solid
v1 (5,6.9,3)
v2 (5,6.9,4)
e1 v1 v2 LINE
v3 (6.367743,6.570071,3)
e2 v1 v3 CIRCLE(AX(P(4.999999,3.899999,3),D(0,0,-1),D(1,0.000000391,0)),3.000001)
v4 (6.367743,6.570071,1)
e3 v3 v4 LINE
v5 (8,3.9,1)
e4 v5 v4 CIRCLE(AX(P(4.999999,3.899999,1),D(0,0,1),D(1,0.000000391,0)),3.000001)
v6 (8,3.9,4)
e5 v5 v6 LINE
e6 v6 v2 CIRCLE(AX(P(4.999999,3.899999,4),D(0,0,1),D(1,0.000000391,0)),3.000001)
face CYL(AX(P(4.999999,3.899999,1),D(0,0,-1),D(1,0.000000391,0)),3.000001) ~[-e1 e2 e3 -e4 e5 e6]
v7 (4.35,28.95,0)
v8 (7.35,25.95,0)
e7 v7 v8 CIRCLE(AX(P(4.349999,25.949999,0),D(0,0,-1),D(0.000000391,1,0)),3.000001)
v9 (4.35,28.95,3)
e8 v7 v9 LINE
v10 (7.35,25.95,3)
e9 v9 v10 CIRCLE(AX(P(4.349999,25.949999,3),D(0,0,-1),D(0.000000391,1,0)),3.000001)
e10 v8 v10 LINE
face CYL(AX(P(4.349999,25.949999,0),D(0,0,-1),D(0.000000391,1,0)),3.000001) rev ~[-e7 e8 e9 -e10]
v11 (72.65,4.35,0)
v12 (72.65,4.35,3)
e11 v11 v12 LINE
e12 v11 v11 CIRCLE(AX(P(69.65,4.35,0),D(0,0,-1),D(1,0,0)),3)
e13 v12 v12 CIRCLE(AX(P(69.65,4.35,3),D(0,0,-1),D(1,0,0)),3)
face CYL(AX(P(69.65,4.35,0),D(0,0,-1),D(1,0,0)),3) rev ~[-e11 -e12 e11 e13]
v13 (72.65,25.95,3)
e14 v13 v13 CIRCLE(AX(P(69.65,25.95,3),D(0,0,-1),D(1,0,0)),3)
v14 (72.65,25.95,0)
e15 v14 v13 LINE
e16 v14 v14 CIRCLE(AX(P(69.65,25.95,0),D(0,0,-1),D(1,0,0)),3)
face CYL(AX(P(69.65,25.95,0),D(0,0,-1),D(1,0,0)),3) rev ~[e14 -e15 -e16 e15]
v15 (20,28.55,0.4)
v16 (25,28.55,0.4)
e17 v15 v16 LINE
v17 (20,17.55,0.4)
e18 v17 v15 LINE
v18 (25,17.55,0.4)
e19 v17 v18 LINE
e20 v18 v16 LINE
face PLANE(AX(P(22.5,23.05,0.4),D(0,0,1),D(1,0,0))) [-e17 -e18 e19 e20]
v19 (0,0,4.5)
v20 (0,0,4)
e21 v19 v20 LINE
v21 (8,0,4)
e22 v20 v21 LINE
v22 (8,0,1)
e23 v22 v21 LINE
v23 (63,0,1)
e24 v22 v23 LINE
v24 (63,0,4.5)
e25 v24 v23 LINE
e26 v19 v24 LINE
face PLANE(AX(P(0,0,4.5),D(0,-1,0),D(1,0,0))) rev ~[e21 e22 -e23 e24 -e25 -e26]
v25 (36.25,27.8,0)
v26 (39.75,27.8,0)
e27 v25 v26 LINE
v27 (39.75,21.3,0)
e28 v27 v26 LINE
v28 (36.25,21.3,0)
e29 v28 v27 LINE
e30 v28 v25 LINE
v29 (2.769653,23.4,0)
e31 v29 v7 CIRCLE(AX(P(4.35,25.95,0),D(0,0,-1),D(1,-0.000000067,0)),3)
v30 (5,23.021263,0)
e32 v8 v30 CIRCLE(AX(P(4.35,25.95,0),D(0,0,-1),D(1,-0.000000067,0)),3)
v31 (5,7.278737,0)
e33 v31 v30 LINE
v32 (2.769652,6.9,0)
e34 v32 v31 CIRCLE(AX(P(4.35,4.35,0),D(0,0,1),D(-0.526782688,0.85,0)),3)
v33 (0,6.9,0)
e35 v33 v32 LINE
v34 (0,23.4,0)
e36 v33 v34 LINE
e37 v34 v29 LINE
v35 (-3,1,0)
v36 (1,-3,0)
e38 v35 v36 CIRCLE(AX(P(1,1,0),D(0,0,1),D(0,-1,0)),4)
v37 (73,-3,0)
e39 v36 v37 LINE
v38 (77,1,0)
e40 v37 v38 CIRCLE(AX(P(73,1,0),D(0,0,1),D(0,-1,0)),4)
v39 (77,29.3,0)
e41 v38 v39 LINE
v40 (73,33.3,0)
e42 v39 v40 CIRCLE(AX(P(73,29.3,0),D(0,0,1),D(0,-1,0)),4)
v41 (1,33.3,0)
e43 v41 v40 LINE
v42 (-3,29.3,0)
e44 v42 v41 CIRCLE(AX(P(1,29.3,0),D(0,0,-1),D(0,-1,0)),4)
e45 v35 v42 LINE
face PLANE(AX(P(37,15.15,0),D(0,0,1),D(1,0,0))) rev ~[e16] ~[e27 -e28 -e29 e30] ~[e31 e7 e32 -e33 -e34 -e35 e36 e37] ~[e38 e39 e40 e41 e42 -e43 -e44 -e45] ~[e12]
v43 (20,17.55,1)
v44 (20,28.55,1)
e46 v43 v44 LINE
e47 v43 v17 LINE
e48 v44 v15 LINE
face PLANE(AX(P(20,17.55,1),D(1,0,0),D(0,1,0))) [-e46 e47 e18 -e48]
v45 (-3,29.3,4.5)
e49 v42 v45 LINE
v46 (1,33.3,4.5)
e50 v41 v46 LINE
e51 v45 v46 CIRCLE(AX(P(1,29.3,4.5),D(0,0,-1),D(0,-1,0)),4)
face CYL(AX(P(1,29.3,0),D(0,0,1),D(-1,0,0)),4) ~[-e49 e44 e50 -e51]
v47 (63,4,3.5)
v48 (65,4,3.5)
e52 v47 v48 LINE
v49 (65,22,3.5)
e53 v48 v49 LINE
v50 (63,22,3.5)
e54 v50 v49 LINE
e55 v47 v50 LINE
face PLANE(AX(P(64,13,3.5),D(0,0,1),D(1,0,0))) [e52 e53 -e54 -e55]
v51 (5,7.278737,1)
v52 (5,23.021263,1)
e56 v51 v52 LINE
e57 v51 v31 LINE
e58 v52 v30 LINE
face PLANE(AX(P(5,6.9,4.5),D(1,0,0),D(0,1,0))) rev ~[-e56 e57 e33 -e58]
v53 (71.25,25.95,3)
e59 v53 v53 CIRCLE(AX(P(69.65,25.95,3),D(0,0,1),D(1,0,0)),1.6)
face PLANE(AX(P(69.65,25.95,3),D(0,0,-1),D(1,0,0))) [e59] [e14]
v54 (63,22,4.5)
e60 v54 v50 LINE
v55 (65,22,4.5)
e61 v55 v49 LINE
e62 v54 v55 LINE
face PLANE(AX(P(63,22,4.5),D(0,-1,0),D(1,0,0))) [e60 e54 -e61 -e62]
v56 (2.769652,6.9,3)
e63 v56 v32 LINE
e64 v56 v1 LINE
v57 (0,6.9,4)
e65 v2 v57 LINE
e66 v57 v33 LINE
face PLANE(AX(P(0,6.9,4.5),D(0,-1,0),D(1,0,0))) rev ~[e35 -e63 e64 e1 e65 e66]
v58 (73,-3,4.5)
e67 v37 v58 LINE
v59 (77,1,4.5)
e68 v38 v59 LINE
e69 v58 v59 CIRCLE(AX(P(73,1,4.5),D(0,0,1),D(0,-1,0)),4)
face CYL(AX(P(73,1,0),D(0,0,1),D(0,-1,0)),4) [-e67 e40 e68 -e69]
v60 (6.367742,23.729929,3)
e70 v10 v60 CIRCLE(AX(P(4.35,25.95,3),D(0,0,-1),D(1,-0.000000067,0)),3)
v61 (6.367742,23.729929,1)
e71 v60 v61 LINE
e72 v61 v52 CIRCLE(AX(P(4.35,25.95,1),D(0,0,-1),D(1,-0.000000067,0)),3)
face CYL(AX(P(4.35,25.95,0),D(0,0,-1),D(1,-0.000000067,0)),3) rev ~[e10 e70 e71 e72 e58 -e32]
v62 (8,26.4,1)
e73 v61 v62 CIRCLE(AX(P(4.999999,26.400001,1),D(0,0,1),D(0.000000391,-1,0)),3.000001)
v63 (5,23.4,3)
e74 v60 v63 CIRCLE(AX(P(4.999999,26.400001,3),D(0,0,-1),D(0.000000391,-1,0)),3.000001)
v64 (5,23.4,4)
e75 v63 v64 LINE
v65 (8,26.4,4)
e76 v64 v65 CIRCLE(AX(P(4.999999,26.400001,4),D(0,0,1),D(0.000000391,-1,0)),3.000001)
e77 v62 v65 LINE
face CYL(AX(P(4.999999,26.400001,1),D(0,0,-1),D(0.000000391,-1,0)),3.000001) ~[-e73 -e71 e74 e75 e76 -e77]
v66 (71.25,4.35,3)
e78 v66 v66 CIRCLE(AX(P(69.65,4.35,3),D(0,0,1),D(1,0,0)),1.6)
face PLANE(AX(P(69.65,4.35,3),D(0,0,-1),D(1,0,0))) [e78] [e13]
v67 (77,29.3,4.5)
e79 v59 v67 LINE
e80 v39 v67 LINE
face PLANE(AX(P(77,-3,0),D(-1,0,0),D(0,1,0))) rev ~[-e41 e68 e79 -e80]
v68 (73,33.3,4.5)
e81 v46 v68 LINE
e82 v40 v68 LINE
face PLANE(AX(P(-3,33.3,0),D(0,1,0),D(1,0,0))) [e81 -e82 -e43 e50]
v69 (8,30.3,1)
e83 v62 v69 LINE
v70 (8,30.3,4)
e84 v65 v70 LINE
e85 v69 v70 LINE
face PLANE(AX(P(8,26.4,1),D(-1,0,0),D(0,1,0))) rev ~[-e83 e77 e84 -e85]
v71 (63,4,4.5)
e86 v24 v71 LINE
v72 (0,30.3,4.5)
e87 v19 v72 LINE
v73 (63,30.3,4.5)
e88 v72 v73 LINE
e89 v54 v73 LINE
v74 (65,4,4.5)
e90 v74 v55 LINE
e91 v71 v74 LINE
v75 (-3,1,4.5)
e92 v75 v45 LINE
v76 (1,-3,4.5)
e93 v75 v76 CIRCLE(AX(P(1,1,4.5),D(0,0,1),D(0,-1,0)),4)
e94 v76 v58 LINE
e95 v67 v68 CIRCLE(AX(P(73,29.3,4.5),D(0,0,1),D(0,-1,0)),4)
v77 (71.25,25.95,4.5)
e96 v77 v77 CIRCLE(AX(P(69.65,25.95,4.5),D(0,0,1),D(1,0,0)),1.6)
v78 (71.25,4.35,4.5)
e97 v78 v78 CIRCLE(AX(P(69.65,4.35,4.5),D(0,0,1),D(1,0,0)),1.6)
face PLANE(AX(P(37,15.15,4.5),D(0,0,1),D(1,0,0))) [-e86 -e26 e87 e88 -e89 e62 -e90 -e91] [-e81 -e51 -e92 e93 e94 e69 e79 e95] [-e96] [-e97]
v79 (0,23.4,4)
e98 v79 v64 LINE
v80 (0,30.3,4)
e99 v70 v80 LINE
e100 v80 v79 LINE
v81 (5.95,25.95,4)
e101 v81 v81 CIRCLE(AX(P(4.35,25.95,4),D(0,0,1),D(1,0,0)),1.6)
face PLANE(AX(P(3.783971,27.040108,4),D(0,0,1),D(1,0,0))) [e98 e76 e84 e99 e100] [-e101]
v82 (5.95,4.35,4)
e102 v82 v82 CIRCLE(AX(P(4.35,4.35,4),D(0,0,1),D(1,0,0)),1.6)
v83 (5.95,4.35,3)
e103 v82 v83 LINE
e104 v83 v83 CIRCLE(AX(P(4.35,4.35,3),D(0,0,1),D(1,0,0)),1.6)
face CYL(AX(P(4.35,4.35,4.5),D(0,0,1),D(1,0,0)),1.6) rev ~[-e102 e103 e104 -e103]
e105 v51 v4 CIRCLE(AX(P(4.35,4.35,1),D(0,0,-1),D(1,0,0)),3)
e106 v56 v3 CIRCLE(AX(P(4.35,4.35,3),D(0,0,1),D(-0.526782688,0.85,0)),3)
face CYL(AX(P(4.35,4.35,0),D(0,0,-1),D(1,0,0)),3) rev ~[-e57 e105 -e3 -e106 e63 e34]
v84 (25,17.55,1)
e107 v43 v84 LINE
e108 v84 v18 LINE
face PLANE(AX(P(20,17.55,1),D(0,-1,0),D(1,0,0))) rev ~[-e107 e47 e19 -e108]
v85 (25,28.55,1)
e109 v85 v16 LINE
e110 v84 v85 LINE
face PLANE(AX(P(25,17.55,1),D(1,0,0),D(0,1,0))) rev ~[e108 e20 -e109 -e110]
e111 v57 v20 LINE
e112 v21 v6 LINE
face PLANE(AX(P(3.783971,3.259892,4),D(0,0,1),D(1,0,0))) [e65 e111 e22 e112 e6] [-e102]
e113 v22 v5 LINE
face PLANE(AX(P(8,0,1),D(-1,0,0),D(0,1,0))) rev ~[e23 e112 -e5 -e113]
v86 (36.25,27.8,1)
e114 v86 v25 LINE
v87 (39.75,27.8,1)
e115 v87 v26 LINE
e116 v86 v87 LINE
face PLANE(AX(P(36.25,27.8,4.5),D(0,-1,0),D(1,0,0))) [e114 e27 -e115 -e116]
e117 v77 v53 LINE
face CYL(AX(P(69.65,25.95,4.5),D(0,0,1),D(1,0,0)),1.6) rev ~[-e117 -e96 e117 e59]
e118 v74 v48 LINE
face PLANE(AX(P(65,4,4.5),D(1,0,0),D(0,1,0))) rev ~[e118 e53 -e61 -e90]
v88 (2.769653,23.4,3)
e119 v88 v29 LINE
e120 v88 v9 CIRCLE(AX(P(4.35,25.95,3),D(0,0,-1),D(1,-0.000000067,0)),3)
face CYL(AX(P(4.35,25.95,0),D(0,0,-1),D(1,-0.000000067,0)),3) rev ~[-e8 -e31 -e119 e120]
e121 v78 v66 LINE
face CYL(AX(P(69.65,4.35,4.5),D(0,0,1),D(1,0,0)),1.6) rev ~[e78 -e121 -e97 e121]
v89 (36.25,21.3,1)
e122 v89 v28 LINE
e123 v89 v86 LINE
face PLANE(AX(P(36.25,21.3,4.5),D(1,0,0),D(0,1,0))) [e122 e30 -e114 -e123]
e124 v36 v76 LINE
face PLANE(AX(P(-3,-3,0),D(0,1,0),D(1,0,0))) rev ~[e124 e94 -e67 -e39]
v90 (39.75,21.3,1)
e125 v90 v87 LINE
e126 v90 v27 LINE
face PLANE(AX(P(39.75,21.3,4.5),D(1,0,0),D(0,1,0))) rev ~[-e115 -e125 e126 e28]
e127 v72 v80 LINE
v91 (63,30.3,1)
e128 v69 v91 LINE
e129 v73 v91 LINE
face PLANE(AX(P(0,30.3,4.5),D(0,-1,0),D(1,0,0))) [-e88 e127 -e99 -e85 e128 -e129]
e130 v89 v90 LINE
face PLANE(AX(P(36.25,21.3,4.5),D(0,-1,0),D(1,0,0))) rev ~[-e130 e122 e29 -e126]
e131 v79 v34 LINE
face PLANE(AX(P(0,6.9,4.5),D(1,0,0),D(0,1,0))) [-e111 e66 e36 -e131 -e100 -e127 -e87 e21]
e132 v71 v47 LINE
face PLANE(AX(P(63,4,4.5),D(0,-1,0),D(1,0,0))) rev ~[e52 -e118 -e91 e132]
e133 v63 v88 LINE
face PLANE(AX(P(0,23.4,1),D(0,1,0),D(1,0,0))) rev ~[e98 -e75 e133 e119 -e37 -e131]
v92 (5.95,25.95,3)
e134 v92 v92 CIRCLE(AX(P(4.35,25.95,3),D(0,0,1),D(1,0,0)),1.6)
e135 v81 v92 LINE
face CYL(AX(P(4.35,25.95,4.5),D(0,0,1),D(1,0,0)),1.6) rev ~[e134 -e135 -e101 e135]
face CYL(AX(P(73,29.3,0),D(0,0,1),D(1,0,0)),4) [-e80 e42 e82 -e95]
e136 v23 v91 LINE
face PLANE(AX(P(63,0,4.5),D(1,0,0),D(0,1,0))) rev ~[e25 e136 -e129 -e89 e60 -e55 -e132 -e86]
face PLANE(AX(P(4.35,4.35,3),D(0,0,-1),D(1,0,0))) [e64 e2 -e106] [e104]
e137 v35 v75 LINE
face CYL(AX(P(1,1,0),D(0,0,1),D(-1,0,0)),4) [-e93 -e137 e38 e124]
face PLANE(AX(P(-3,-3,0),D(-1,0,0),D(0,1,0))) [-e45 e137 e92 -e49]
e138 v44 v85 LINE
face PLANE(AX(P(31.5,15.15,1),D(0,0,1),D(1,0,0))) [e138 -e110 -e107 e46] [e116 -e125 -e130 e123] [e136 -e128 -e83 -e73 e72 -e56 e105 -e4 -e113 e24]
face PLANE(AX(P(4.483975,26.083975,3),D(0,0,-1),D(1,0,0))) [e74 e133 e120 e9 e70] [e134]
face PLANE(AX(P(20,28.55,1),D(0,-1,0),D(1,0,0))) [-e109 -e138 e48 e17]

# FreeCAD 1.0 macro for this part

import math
import FreeCAD as App
import Part
import Sketcher
from FreeCAD import Vector


def edges_at(feature, points):
    """Names of the edges that pass closest to the given points."""
    edges = feature.Shape.Edges
    near = lambda p: min(range(len(edges)), key=lambda i: edges[i].distToShape(Part.Vertex(*p))[0])
    return sorted({f"Edge{near(p) + 1}" for p in points})


def add_polygon(sketch, points):
    """Adds a closed chain of lines whose ends are joined by coincident constraints."""
    first, n = sketch.GeometryCount, len(points)
    for a, b in zip(points, points[1:] + points[:1]):
        sketch.addGeometry(Part.LineSegment(App.Vector(*a, 0), App.Vector(*b, 0)), False)
    for i in range(n):
        sketch.addConstraint(Sketcher.Constraint("Coincident", first + i, 2, first + (i + 1) % n, 1))

doc = App.newDocument("Part")
body = doc.addObject("PartDesign::Body", "Body")

sketch1 = body.newObject("Sketcher::SketchObject", "Sketch")
sketch1.AttachmentSupport = (doc.getObject("XY_Plane"), [""])
sketch1.MapMode = "FlatFace"
add_polygon(sketch1, [(-3, 33), (-3, -3), (77, -3), (77, 33)])
sketch1.addConstraint([
    Sketcher.Constraint("Vertical", 0),
    Sketcher.Constraint("Horizontal", 1),
    Sketcher.Constraint("Vertical", 2),
    Sketcher.Constraint("Horizontal", 3),
    Sketcher.Constraint("DistanceX", 1, 1, 1, 2, 80.0),
    Sketcher.Constraint("DistanceY", 0, 2, 0, 1, 36.3),
    Sketcher.Constraint("DistanceX", 0, 2, -1, 1, 3.0),
    Sketcher.Constraint("DistanceY", 0, 2, -1, 1, 3.0),
])
pad1 = body.newObject("PartDesign::Pad", "Pad")
pad1.Profile = sketch1
pad1.Length = 4.5
doc.recompute()

fillet = body.newObject("PartDesign::Fillet", "Fillet")
fillet.Base = (pad1, edges_at(pad1, [
    (-3, -3, 2.25),
    (77, -3, 2.25),
    (77, 33.3, 2.25),
    (-3, 33.3, 2.25),
]))
fillet.Radius = 4

sketch2 = body.newObject("Sketcher::SketchObject", "Sketch001")
sketch2.AttachmentSupport = (doc.getObject("XY_Plane"), [""])
sketch2.MapMode = "FlatFace"
sketch2.AttachmentOffset = App.Placement(Vector(0, 0, 4.5), App.Rotation())
add_polygon(sketch2, [(0, 30), (0, 0), (63, 0), (63, 30)])
sketch2.addConstraint([
    Sketcher.Constraint("Vertical", 0),
    Sketcher.Constraint("Horizontal", 1),
    Sketcher.Constraint("Vertical", 2),
    Sketcher.Constraint("Horizontal", 3),
    Sketcher.Constraint("Coincident", 0, 2, -1, 1),
    Sketcher.Constraint("DistanceX", 1, 1, 1, 2, 63.0),
    Sketcher.Constraint("DistanceY", 0, 2, 0, 1, 30.3),
])
pocket1 = body.newObject("PartDesign::Pocket", "Pocket")
pocket1.Profile = sketch2
pocket1.Length = 3.5

sketch3 = body.newObject("Sketcher::SketchObject", "Sketch002")
sketch3.AttachmentSupport = (doc.getObject("XY_Plane"), [""])
sketch3.MapMode = "FlatFace"
sketch3.AttachmentOffset = App.Placement(Vector(0, 0, 4.5), App.Rotation())
add_polygon(sketch3, [(0, 23.4), (0, 6.9), (5, 6.9), (5, 23.4)])
add_polygon(sketch3, [(36.2, 27.8), (36.2, 21.3), (39.8, 21.3), (39.8, 27.8)])
sketch3.addConstraint([
    Sketcher.Constraint("Vertical", 0),
    Sketcher.Constraint("Horizontal", 1),
    Sketcher.Constraint("Vertical", 2),
    Sketcher.Constraint("Horizontal", 3),
    Sketcher.Constraint("Vertical", 4),
    Sketcher.Constraint("Horizontal", 5),
    Sketcher.Constraint("Vertical", 6),
    Sketcher.Constraint("Horizontal", 7),
    Sketcher.Constraint("PointOnObject", 0, 2, -2),
    Sketcher.Constraint("DistanceX", 1, 1, 1, 2, 5.0),
    Sketcher.Constraint("DistanceX", 5, 1, 5, 2, 3.5),
    Sketcher.Constraint("DistanceY", 0, 2, 0, 1, 16.5),
    Sketcher.Constraint("DistanceY", 4, 2, 4, 1, 6.5),
    Sketcher.Constraint("DistanceY", -1, 1, 0, 2, 6.9),
    Sketcher.Constraint("DistanceY", -1, 1, 4, 2, 21.3),
    Sketcher.Constraint("DistanceX", -1, 1, 4, 2, 36.25),
])
pocket2 = body.newObject("PartDesign::Pocket", "Pocket001")
pocket2.Profile = sketch3
pocket2.Type = "ThroughAll"

sketch4 = body.newObject("Sketcher::SketchObject", "Sketch003")
sketch4.AttachmentSupport = (doc.getObject("XY_Plane"), [""])
sketch4.MapMode = "FlatFace"
sketch4.AttachmentOffset = App.Placement(Vector(0, 0, 4.5), App.Rotation())
add_polygon(sketch4, [(63, 22), (63, 4), (65, 4), (65, 22)])
sketch4.addConstraint([
    Sketcher.Constraint("Vertical", 0),
    Sketcher.Constraint("Horizontal", 1),
    Sketcher.Constraint("Vertical", 2),
    Sketcher.Constraint("Horizontal", 3),
    Sketcher.Constraint("DistanceX", 1, 1, 1, 2, 2.0),
    Sketcher.Constraint("DistanceY", 0, 2, 0, 1, 18.0),
    Sketcher.Constraint("DistanceX", -1, 1, 0, 2, 63.0),
    Sketcher.Constraint("DistanceY", -1, 1, 0, 2, 4.0),
])
pocket3 = body.newObject("PartDesign::Pocket", "Pocket002")
pocket3.Profile = sketch4
pocket3.Length = 1

sketch5 = body.newObject("Sketcher::SketchObject", "Sketch004")
sketch5.AttachmentSupport = (doc.getObject("XY_Plane"), [""])
sketch5.MapMode = "FlatFace"
sketch5.AttachmentOffset = App.Placement(Vector(0, 0, 1), App.Rotation())
sketch5.addGeometry([
    Part.LineSegment(Vector(8, 30.3, 0), Vector(0, 30.3, 0)),
    Part.LineSegment(Vector(0, 30.3, 0), Vector(0, 23.4, 0)),
    Part.LineSegment(Vector(0, 23.4, 0), Vector(5, 23.4, 0)),
    Part.ArcOfCircle(Part.Circle(Vector(5, 26.4, 0), Vector(0, 0, 1), 3), math.radians(-90), math.radians(0)),
    Part.LineSegment(Vector(8, 26.4, 0), Vector(8, 30.3, 0)),
    Part.LineSegment(Vector(5, 6.9, 0), Vector(0, 6.9, 0)),
    Part.LineSegment(Vector(0, 6.9, 0), Vector(0, 0, 0)),
    Part.LineSegment(Vector(0, 0, 0), Vector(8, 0, 0)),
    Part.LineSegment(Vector(8, 0, 0), Vector(8, 3.9, 0)),
    Part.ArcOfCircle(Part.Circle(Vector(5, 3.9, 0), Vector(0, 0, 1), 3), math.radians(0), math.radians(90)),
], False)
sketch5.addConstraint([
    Sketcher.Constraint("Coincident", 0, 2, 1, 1),
    Sketcher.Constraint("Coincident", 1, 2, 2, 1),
    Sketcher.Constraint("Tangent", 2, 2, 3, 1),
    Sketcher.Constraint("Tangent", 3, 2, 4, 1),
    Sketcher.Constraint("Coincident", 4, 2, 0, 1),
    Sketcher.Constraint("Coincident", 5, 2, 6, 1),
    Sketcher.Constraint("Coincident", 6, 2, 7, 1),
    Sketcher.Constraint("Coincident", 7, 2, 8, 1),
    Sketcher.Constraint("Tangent", 8, 2, 9, 1),
    Sketcher.Constraint("Tangent", 9, 2, 5, 1),
    Sketcher.Constraint("Horizontal", 0),
    Sketcher.Constraint("Vertical", 1),
    Sketcher.Constraint("Horizontal", 2),
    Sketcher.Constraint("Vertical", 4),
    Sketcher.Constraint("Horizontal", 5),
    Sketcher.Constraint("Vertical", 6),
    Sketcher.Constraint("Horizontal", 7),
    Sketcher.Constraint("Vertical", 8),
    Sketcher.Constraint("Coincident", 6, 2, -1, 1),
    Sketcher.Constraint("Equal", 3, 9),
    Sketcher.Constraint("PointOnObject", 0, 2, -2),
    Sketcher.Constraint("Vertical", 3, 3, 9, 3),
    Sketcher.Constraint("Equal", 1, 6),
    Sketcher.Constraint("Radius", 3, 3.000001),
    Sketcher.Constraint("DistanceX", 0, 2, 0, 1, 8.0),
    Sketcher.Constraint("DistanceY", 1, 2, 1, 1, 6.9),
    Sketcher.Constraint("DistanceY", -1, 1, 3, 3, 26.400001),
])
pad2 = body.newObject("PartDesign::Pad", "Pad001")
pad2.Profile = sketch5
pad2.Length = 3

sketch6 = body.newObject("Sketcher::SketchObject", "Sketch005")
sketch6.AttachmentSupport = (doc.getObject("XY_Plane"), [""])
sketch6.MapMode = "FlatFace"
sketch6.AttachmentOffset = App.Placement(Vector(0, 0, 4.5), App.Rotation())
sketch6.addGeometry([
    Part.Circle(Vector(4.3, 4.3, 0), Vector(0, 0, 1), 1.6),
    Part.Circle(Vector(4.3, 25.9, 0), Vector(0, 0, 1), 1.6),
    Part.Circle(Vector(69.7, 25.9, 0), Vector(0, 0, 1), 1.6),
    Part.Circle(Vector(69.7, 4.3, 0), Vector(0, 0, 1), 1.6),
], False)
sketch6.addConstraint([
    Sketcher.Constraint("Equal", 0, 1),
    Sketcher.Constraint("Equal", 1, 2),
    Sketcher.Constraint("Equal", 2, 3),
    Sketcher.Constraint("Horizontal", 1, 3, 2, 3),
    Sketcher.Constraint("Horizontal", 0, 3, 3, 3),
    Sketcher.Constraint("Vertical", 0, 3, 1, 3),
    Sketcher.Constraint("Vertical", 2, 3, 3, 3),
    Sketcher.Constraint("Diameter", 0, 3.2),
    Sketcher.Constraint("DistanceY", 0, 3, 1, 3, 21.6),
    Sketcher.Constraint("DistanceX", 1, 3, 2, 3, 65.3),
    Sketcher.Constraint("DistanceX", -1, 1, 0, 3, 4.35),
    Sketcher.Constraint("DistanceY", -1, 1, 0, 3, 4.35),
])
pocket4 = body.newObject("PartDesign::Pocket", "Pocket003")
pocket4.Profile = sketch6
pocket4.Type = "ThroughAll"

sketch7 = body.newObject("Sketcher::SketchObject", "Sketch006")
sketch7.AttachmentSupport = (doc.getObject("XY_Plane"), [""])
sketch7.MapMode = "FlatFace"
sketch7.addGeometry([
    Part.Circle(Vector(69.7, 25.9, 0), Vector(0, 0, 1), 3),
    Part.Circle(Vector(69.7, 4.3, 0), Vector(0, 0, 1), 3),
    Part.ArcOfCircle(Part.Circle(Vector(4.3, 25.9, 0), Vector(0, 0, 1), 3), math.radians(0), math.radians(90)),
    Part.ArcOfCircle(Part.Circle(Vector(4.4, 26, 0), Vector(0, 0, 1), 3), math.radians(90), math.radians(360)),
    Part.Circle(Vector(4.3, 4.3, 0), Vector(0, 0, 1), 3),
], False)
sketch7.addConstraint([
    Sketcher.Constraint("Tangent", 2, 1, 3, 2),
    Sketcher.Constraint("Coincident", 3, 1, 2, 2),
    Sketcher.Constraint("Equal", 0, 1),
    Sketcher.Constraint("Equal", 1, 2),
    Sketcher.Constraint("Equal", 3, 4),
    Sketcher.Constraint("Horizontal", 0, 3, 2, 3),
    Sketcher.Constraint("Horizontal", 1, 3, 4, 3),
    Sketcher.Constraint("Horizontal", 3, 3, 2, 1),
    Sketcher.Constraint("Vertical", 0, 3, 1, 3),
    Sketcher.Constraint("Vertical", 3, 3, 4, 3),
    Sketcher.Constraint("Vertical", 4, 3, 3, 1),
    Sketcher.Constraint("Diameter", 0, 6.0),
    Sketcher.Constraint("DistanceY", 1, 3, 0, 3, 21.6),
    Sketcher.Constraint("DistanceX", 2, 3, 0, 3, 65.300001),
    Sketcher.Constraint("DistanceX", -1, 1, 0, 3, 69.65),
    Sketcher.Constraint("DistanceY", -1, 1, 0, 3, 25.95),
])
pocket5 = body.newObject("PartDesign::Pocket", "Pocket004")
pocket5.Profile = sketch7
pocket5.Length = 3
pocket5.Reversed = True

sketch8 = body.newObject("Sketcher::SketchObject", "Sketch007")
sketch8.AttachmentSupport = (doc.getObject("XY_Plane"), [""])
sketch8.MapMode = "FlatFace"
sketch8.AttachmentOffset = App.Placement(Vector(0, 0, 1), App.Rotation())
add_polygon(sketch8, [(20, 29), (20, 18), (25, 18), (25, 29)])
sketch8.addConstraint([
    Sketcher.Constraint("Vertical", 0),
    Sketcher.Constraint("Horizontal", 1),
    Sketcher.Constraint("Vertical", 2),
    Sketcher.Constraint("Horizontal", 3),
    Sketcher.Constraint("DistanceX", 1, 1, 1, 2, 5.0),
    Sketcher.Constraint("DistanceY", 0, 2, 0, 1, 11.0),
    Sketcher.Constraint("DistanceX", -1, 1, 0, 2, 20.0),
    Sketcher.Constraint("DistanceY", -1, 1, 0, 2, 17.55),
])
pocket6 = body.newObject("PartDesign::Pocket", "Pocket005")
pocket6.Profile = sketch8
pocket6.Length = 0.6

doc.recompute()
